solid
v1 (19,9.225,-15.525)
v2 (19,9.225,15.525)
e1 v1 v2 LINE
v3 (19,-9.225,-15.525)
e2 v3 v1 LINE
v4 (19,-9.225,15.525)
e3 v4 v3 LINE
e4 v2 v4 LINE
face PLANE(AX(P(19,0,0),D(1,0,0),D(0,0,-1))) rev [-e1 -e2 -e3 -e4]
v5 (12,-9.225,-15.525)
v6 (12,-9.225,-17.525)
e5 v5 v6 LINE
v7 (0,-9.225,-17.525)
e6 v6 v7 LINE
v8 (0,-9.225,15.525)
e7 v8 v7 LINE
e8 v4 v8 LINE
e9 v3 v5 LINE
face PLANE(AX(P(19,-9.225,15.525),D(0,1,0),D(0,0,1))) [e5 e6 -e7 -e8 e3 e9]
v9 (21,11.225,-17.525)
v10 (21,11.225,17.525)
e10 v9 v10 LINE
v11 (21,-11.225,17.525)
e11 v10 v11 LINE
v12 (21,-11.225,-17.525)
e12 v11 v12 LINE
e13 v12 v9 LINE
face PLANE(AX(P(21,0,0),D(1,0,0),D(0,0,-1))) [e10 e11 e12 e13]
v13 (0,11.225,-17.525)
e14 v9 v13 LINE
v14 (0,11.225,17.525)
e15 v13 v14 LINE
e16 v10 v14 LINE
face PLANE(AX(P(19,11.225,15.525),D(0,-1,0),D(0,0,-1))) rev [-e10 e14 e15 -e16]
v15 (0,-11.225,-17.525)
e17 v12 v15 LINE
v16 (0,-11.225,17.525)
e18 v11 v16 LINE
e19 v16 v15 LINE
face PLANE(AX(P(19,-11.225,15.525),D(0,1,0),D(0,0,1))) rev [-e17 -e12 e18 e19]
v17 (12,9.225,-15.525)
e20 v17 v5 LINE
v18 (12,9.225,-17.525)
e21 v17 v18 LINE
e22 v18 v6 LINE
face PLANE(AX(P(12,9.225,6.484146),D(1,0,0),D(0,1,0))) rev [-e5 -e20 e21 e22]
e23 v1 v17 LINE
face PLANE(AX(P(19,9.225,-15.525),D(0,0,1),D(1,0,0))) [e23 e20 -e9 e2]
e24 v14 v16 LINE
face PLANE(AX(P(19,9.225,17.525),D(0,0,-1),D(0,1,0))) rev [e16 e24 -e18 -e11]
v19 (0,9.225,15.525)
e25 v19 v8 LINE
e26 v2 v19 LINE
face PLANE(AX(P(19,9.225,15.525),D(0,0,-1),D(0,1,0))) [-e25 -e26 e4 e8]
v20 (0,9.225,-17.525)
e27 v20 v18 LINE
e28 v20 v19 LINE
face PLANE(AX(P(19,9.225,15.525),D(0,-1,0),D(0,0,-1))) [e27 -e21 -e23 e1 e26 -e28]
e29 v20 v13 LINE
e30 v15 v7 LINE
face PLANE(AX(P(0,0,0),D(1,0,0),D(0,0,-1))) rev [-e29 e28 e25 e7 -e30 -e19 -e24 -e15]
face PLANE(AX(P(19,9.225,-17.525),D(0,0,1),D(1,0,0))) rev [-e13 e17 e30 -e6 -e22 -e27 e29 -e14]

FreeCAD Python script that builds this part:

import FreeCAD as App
import Part
import Sketcher
from FreeCAD import Vector


def faces_at(feature, points):
    """Names of the faces that lie closest to the given points."""
    faces = feature.Shape.Faces
    near = lambda p: min(range(len(faces)), key=lambda i: faces[i].distToShape(Part.Vertex(*p))[0])
    return sorted({f"Face{near(p) + 1}" for p in points})


def add_polygon(sketch, points):
    """Adds a closed chain of lines whose ends are joined by coincident constraints."""
    first, n = sketch.GeometryCount, len(points)
    for a, b in zip(points, points[1:] + points[:1]):
        sketch.addGeometry(Part.LineSegment(App.Vector(*a, 0), App.Vector(*b, 0)), False)
    for i in range(n):
        sketch.addConstraint(Sketcher.Constraint("Coincident", first + i, 2, first + (i + 1) % n, 1))

doc = App.newDocument("Part")
body = doc.addObject("PartDesign::Body", "Body")

sketch1 = body.newObject("Sketcher::SketchObject", "Sketch")
sketch1.AttachmentSupport = (doc.getObject("YZ_Plane"), [""])
sketch1.MapMode = "FlatFace"
add_polygon(sketch1, [(9, 16), (-9, 16), (-9, -16), (9, -16)])
sketch1.addConstraint([
    Sketcher.Constraint("Horizontal", 0),
    Sketcher.Constraint("Vertical", 1),
    Sketcher.Constraint("Horizontal", 2),
    Sketcher.Constraint("Vertical", 3),
    Sketcher.Constraint("Symmetric", 0, 2, 2, 2, -1, 1),
    Sketcher.Constraint("DistanceX", 0, 2, 0, 1, 18.45),
    Sketcher.Constraint("DistanceY", 1, 2, 1, 1, 31.05),
])
pad1 = body.newObject("PartDesign::Pad", "Pad")
pad1.Profile = sketch1
pad1.Length = 19
doc.recompute()

thickness = body.newObject("PartDesign::Thickness", "Thickness")
thickness.Base = (pad1, faces_at(pad1, [(0, 0, 0)]))
thickness.Value = 2
thickness.Reversed = False
thickness.Join = "Intersection"

sketch2 = body.newObject("Sketcher::SketchObject", "Sketch001")
sketch2.AttachmentSupport = (doc.getObject("XY_Plane"), [""])
sketch2.MapMode = "FlatFace"
sketch2.AttachmentOffset = App.Placement(Vector(0, 0, -17.525), App.Rotation())
add_polygon(sketch2, [(12, 9), (12, -9), (0, -9), (0, 9)])
sketch2.addConstraint([
    Sketcher.Constraint("Vertical", 0),
    Sketcher.Constraint("Horizontal", 1),
    Sketcher.Constraint("Vertical", 2),
    Sketcher.Constraint("Horizontal", 3),
    Sketcher.Constraint("Symmetric", 1, 2, 2, 2, -1, 1),
    Sketcher.Constraint("DistanceX", 1, 2, 1, 1, 12.0),
    Sketcher.Constraint("DistanceY", 0, 2, 0, 1, 18.45),
])
pocket1 = body.newObject("PartDesign::Pocket", "Pocket")
pocket1.Profile = sketch2
pocket1.Length = 2
pocket1.Reversed = True

doc.recompute()
